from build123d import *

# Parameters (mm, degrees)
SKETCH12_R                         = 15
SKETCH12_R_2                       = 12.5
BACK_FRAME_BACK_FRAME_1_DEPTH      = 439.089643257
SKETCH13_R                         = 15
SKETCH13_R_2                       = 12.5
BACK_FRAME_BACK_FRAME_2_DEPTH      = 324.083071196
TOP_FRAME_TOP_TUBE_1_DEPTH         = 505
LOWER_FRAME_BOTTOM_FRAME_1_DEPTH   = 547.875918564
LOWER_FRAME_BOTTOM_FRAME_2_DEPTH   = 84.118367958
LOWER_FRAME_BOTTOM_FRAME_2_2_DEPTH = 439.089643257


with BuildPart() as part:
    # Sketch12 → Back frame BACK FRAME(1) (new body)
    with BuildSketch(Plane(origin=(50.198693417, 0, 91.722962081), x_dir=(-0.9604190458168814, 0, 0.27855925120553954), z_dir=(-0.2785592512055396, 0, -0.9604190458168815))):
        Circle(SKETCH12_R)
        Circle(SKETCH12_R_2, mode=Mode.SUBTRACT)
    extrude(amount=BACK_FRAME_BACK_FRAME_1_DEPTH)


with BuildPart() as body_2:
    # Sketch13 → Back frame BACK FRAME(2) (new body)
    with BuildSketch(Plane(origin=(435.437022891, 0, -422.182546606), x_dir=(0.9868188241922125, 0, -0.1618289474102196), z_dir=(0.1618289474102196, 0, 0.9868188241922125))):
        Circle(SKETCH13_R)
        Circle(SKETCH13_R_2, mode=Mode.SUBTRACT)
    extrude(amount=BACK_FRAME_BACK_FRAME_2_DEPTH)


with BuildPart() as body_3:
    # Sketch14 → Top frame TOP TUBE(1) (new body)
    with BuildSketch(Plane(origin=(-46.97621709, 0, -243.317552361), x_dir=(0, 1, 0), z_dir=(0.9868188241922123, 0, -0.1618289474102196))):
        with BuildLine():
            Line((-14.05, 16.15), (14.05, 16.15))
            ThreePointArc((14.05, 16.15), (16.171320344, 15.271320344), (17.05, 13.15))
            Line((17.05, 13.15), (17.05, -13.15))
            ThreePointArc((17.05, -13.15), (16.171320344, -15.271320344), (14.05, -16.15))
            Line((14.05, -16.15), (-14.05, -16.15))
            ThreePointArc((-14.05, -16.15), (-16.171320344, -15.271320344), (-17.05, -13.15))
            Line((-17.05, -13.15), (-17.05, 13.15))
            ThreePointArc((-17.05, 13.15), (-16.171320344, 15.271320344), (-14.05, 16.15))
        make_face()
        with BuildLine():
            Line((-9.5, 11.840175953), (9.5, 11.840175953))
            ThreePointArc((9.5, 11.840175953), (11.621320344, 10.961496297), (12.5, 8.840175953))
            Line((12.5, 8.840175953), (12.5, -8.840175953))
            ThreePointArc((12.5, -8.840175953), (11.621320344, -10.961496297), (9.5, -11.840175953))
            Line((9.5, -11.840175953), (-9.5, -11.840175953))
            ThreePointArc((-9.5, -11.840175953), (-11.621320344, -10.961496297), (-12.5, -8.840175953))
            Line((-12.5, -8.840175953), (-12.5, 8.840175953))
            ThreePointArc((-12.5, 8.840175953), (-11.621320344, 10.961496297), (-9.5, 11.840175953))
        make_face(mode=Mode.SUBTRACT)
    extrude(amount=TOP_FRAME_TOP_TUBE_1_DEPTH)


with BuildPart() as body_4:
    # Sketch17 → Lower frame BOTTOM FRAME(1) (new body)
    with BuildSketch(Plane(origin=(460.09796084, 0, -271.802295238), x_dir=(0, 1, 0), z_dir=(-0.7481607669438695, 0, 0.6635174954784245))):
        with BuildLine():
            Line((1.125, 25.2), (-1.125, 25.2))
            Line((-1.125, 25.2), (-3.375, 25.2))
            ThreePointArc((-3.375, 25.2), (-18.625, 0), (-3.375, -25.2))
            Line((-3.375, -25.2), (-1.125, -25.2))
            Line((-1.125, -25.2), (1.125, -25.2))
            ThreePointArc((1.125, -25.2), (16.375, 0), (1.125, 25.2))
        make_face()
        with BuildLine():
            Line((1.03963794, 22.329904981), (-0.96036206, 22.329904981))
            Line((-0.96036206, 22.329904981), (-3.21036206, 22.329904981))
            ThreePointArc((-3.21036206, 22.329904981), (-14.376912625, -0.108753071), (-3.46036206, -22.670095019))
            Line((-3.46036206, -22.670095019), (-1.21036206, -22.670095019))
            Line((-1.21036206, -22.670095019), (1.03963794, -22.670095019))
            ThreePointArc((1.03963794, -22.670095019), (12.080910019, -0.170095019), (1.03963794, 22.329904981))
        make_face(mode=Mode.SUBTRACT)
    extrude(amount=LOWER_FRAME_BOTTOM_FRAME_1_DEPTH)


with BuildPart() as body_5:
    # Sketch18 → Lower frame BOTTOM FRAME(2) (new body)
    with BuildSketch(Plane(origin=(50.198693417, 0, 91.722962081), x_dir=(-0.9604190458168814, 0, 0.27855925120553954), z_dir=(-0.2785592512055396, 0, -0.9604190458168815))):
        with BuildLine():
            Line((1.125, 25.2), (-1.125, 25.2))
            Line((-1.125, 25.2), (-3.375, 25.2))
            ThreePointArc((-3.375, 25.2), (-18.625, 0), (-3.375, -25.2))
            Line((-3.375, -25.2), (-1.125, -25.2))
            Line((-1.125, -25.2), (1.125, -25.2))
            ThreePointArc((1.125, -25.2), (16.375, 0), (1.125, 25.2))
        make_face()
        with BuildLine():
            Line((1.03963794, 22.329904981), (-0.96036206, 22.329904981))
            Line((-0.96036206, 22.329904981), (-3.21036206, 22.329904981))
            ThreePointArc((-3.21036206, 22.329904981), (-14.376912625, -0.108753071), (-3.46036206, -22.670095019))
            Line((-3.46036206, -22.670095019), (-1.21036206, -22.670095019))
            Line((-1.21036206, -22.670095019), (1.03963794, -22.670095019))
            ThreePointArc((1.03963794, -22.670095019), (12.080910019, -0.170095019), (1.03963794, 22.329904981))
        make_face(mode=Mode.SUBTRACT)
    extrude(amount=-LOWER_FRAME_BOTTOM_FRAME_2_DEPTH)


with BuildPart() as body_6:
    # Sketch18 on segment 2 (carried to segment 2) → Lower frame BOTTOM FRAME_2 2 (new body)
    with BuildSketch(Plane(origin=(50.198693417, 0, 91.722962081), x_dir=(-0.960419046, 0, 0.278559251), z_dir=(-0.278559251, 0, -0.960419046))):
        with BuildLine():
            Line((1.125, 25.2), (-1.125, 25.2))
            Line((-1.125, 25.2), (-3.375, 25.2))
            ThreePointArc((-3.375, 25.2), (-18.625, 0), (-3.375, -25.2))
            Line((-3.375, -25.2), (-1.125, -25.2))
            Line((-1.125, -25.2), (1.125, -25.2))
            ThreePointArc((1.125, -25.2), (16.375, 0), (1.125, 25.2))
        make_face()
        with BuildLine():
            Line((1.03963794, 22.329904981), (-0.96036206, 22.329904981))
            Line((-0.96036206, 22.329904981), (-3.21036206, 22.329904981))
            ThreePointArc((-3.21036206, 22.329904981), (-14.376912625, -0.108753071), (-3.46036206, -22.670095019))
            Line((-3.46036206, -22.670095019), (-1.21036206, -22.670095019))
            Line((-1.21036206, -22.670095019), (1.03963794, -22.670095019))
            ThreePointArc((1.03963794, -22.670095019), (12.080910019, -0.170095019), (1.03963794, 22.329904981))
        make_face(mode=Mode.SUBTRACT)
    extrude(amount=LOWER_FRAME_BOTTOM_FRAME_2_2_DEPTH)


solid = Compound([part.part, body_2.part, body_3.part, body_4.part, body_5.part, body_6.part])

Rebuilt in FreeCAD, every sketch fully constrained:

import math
import FreeCAD as App
import Part
import Sketcher
Q = App.Units.Quantity

doc = App.newDocument("Part")
body = doc.addObject("PartDesign::Body", "Body")

sketch1 = body.newObject("Sketcher::SketchObject", "Sketch")
sketch1.Placement = App.Placement(App.Vector(50.198693, 0, 91.722962), App.Rotation(App.Vector(-0.960419046, 0, 0.278559251), App.Vector(0, 1, 0), App.Vector(-0.278559251, 0, -0.960419046), "ZXY"))
sketch1.addGeometry([
    Part.Circle(App.Vector(0, 0, 0), App.Vector(0, 0, 1), 15),
    Part.Circle(App.Vector(0, 0, 0), App.Vector(0, 0, 1), 12.5),
], False)
sketch1.addConstraint([
    Sketcher.Constraint("Coincident", 0, 3, -1, 1),
    Sketcher.Constraint("Coincident", 1, 3, -1, 1),
    Sketcher.Constraint("Diameter", 0, Q("30 mm")),
    Sketcher.Constraint("Diameter", 1, Q("25 mm")),
])
pad1 = body.newObject("PartDesign::Pad", "Pad")
pad1.Profile = sketch1
pad1.Length = 439.089643
body2 = doc.addObject("PartDesign::Body", "Body001")

sketch2 = body2.newObject("Sketcher::SketchObject", "Sketch001")
sketch2.Placement = App.Placement(App.Vector(435.437023, 0, -422.182547), App.Rotation(App.Vector(0.986818824, 0, -0.161828947), App.Vector(0, 0.999999999, 0), App.Vector(0.161828947, 0, 0.986818824), "ZXY"))
sketch2.addGeometry([
    Part.Circle(App.Vector(0, 0, 0), App.Vector(0, 0, 1), 15),
    Part.Circle(App.Vector(0, 0, 0), App.Vector(0, 0, 1), 12.5),
], False)
sketch2.addConstraint([
    Sketcher.Constraint("Coincident", 0, 3, -1, 1),
    Sketcher.Constraint("Coincident", 1, 3, -1, 1),
    Sketcher.Constraint("Diameter", 0, Q("30 mm")),
    Sketcher.Constraint("Diameter", 1, Q("25 mm")),
])
pad2 = body2.newObject("PartDesign::Pad", "Pad001")
pad2.Profile = sketch2
pad2.Length = 324.083071
body3 = doc.addObject("PartDesign::Body", "Body002")

sketch3 = body3.newObject("Sketcher::SketchObject", "Sketch002")
sketch3.Placement = App.Placement(App.Vector(-46.976217, 0, -243.317552), App.Rotation(App.Vector(0, 1, 0), App.Vector(0.161828947, 0, 0.986818824), App.Vector(0.986818824, 0, -0.161828947), "ZXY"))
sketch3.addGeometry([
    Part.LineSegment(App.Vector(14.05, 16.15, 0), App.Vector(-14.05, 16.15, 0)),
    Part.ArcOfCircle(Part.Circle(App.Vector(-14.05, 13.15, 0), App.Vector(0, 0, 1), 3), math.radians(90), math.radians(180)),
    Part.LineSegment(App.Vector(-17.05, 13.15, 0), App.Vector(-17.05, -13.15, 0)),
    Part.ArcOfCircle(Part.Circle(App.Vector(-14.05, -13.15, 0), App.Vector(0, 0, 1), 3), math.radians(180), math.radians(270)),
    Part.LineSegment(App.Vector(-14.05, -16.15, 0), App.Vector(14.05, -16.15, 0)),
    Part.ArcOfCircle(Part.Circle(App.Vector(14.05, -13.15, 0), App.Vector(0, 0, 1), 3), math.radians(-90), math.radians(0)),
    Part.LineSegment(App.Vector(17.05, -13.15, 0), App.Vector(17.05, 13.15, 0)),
    Part.ArcOfCircle(Part.Circle(App.Vector(14.05, 13.15, 0), App.Vector(0, 0, 1), 3), math.radians(0), math.radians(90)),
    Part.LineSegment(App.Vector(-9.5, 11.840176, 0), App.Vector(9.5, 11.840176, 0)),
    Part.ArcOfCircle(Part.Circle(App.Vector(9.5, 8.840176, 0), App.Vector(0, 0, 1), 3), math.radians(0), math.radians(90)),
    Part.LineSegment(App.Vector(12.5, 8.840176, 0), App.Vector(12.5, -8.840176, 0)),
    Part.ArcOfCircle(Part.Circle(App.Vector(9.5, -8.840176, 0), App.Vector(0, 0, 1), 3), math.radians(-90), math.radians(0)),
    Part.LineSegment(App.Vector(9.5, -11.840176, 0), App.Vector(-9.5, -11.840176, 0)),
    Part.ArcOfCircle(Part.Circle(App.Vector(-9.5, -8.840176, 0), App.Vector(0, 0, 1), 3), math.radians(180), math.radians(270)),
    Part.LineSegment(App.Vector(-12.5, -8.840176, 0), App.Vector(-12.5, 8.840176, 0)),
    Part.ArcOfCircle(Part.Circle(App.Vector(-9.5, 8.840176, 0), App.Vector(0, 0, 1), 3), math.radians(90), math.radians(180)),
], False)
sketch3.addConstraint([
    Sketcher.Constraint("Tangent", 0, 2, 1, 1),
    Sketcher.Constraint("Tangent", 1, 2, 2, 1),
    Sketcher.Constraint("Tangent", 2, 2, 3, 1),
    Sketcher.Constraint("Tangent", 3, 2, 4, 1),
    Sketcher.Constraint("Tangent", 4, 2, 5, 1),
    Sketcher.Constraint("Tangent", 5, 2, 6, 1),
    Sketcher.Constraint("Tangent", 6, 2, 7, 1),
    Sketcher.Constraint("Tangent", 7, 2, 0, 1),
    Sketcher.Constraint("Tangent", 8, 2, 9, 2),
    Sketcher.Constraint("Tangent", 9, 1, 10, 1),
    Sketcher.Constraint("Tangent", 10, 2, 11, 2),
    Sketcher.Constraint("Tangent", 11, 1, 12, 1),
    Sketcher.Constraint("Tangent", 12, 2, 13, 2),
    Sketcher.Constraint("Tangent", 13, 1, 14, 1),
    Sketcher.Constraint("Tangent", 14, 2, 15, 2),
    Sketcher.Constraint("Tangent", 15, 1, 8, 1),
    Sketcher.Constraint("Horizontal", 0),
    Sketcher.Constraint("Vertical", 2),
    Sketcher.Constraint("Horizontal", 4),
    Sketcher.Constraint("Vertical", 6),
    Sketcher.Constraint("Horizontal", 8),
    Sketcher.Constraint("Vertical", 10),
    Sketcher.Constraint("Horizontal", 12),
    Sketcher.Constraint("Vertical", 14),
    Sketcher.Constraint("Equal", 1, 3),
    Sketcher.Constraint("Equal", 3, 5),
    Sketcher.Constraint("Equal", 5, 7),
    Sketcher.Constraint("Equal", 7, 9),
    Sketcher.Constraint("Equal", 9, 11),
    Sketcher.Constraint("Equal", 11, 13),
    Sketcher.Constraint("Equal", 13, 15),
    Sketcher.Constraint("Symmetric", 1, 3, 5, 3, -1, 1),
    Sketcher.Constraint("Symmetric", 9, 3, 13, 3, -1, 1),
    Sketcher.Constraint("Radius", 1, Q("3 mm")),
    Sketcher.Constraint("DistanceX", 8, 1, 8, 2, Q("19 mm")),
    Sketcher.Constraint("DistanceX", 0, 2, 0, 1, Q("28.1 mm")),
    Sketcher.Constraint("DistanceY", 2, 2, 2, 1, Q("26.3 mm")),
    Sketcher.Constraint("DistanceY", 10, 2, 10, 1, Q("17.680352 mm")),
])
pad3 = body3.newObject("PartDesign::Pad", "Pad002")
pad3.Profile = sketch3
pad3.Length = 505
body4 = doc.addObject("PartDesign::Body", "Body003")

sketch4 = body4.newObject("Sketcher::SketchObject", "Sketch003")
sketch4.Placement = App.Placement(App.Vector(460.097961, 0, -271.802295), App.Rotation(App.Vector(0, 1, 0), App.Vector(-0.663517495, 0, -0.748160767), App.Vector(-0.748160767, 0, 0.663517495), "ZXY"))
sketch4.addGeometry([
    Part.LineSegment(App.Vector(1.125, 25.2, 0), App.Vector(-3.375, 25.2, 0)),
    Part.ArcOfCircle(Part.Circle(App.Vector(9.820984, 0, 0), App.Vector(0, 0, 1), 28.445984), math.radians(117.638809), math.radians(242.361191)),
    Part.LineSegment(App.Vector(-3.375, -25.2, 0), App.Vector(1.125, -25.2, 0)),
    Part.ArcOfCircle(Part.Circle(App.Vector(-12.070984, 0, 0), App.Vector(0, 0, 1), 28.445984), math.radians(-62.361191), math.radians(62.361191)),
    Part.LineSegment(App.Vector(-3.210362, 22.329905, 0), App.Vector(1.039638, 22.329905, 0)),
    Part.ArcOfCircle(Part.Circle(App.Vector(-16.365074, -0.170095, 0), App.Vector(0, 0, 1), 28.445984), math.radians(-52.276517), math.radians(52.276517)),
    Part.LineSegment(App.Vector(1.039638, -22.670095, 0), App.Vector(-3.460362, -22.670095, 0)),
    Part.ArcOfCircle(Part.Circle(App.Vector(14.068632, -0.266784, 0), App.Vector(0, 0, 1), 28.445984), math.radians(127.404034), math.radians(231.959353)),
], False)
sketch4.addConstraint([
    Sketcher.Constraint("Coincident", 0, 2, 1, 1),
    Sketcher.Constraint("Coincident", 1, 2, 2, 1),
    Sketcher.Constraint("Coincident", 2, 2, 3, 1),
    Sketcher.Constraint("Coincident", 3, 2, 0, 1),
    Sketcher.Constraint("Coincident", 4, 2, 5, 2),
    Sketcher.Constraint("Coincident", 5, 1, 6, 1),
    Sketcher.Constraint("Coincident", 6, 2, 7, 2),
    Sketcher.Constraint("Coincident", 7, 1, 4, 1),
    Sketcher.Constraint("Horizontal", 0),
    Sketcher.Constraint("Horizontal", 2),
    Sketcher.Constraint("Horizontal", 4),
    Sketcher.Constraint("Horizontal", 6),
    Sketcher.Constraint("Equal", 1, 3),
    Sketcher.Constraint("Equal", 3, 5),
    Sketcher.Constraint("Equal", 5, 7),
    Sketcher.Constraint("Symmetric", 0, 2, 1, 2, -1),
    Sketcher.Constraint("PointOnObject", 3, 3, -1),
    Sketcher.Constraint("Vertical", 4, 2, 5, 1),
    Sketcher.Constraint("Equal", 2, 6),
    Sketcher.Constraint("DistanceX", 0, 2, 0, 1, Q("4.5 mm")),
    Sketcher.Constraint("DistanceX", 4, 1, 4, 2, Q("4.25 mm")),
    Sketcher.Constraint("DistanceY", -1, 1, 0, 2, Q("25.2 mm")),
    Sketcher.Constraint("DistanceY", 6, 2, 5, 3, Q("22.5 mm")),
    Sketcher.Constraint("DistanceX", 0, 2, -1, 1, Q("3.375 mm")),
    Sketcher.Constraint("Radius", 1, Q("28.445984 mm")),
    Sketcher.Constraint("DistanceX", 5, 3, 3, 3, Q("4.29409 mm")),
    Sketcher.Constraint("DistanceY", 5, 3, -1, 1, Q("0.170095 mm")),
])
pad4 = body4.newObject("PartDesign::Pad", "Pad003")
pad4.Profile = sketch4
pad4.Length = 547.875919
body5 = doc.addObject("PartDesign::Body", "Body004")

sketch5 = body5.newObject("Sketcher::SketchObject", "Sketch004")
sketch5.Placement = App.Placement(App.Vector(50.198693, 0, 91.722962), App.Rotation(App.Vector(-0.960419046, 0, 0.278559251), App.Vector(0, 1, 0), App.Vector(-0.278559251, 0, -0.960419046), "ZXY"))
sketch5.addGeometry([
    Part.LineSegment(App.Vector(1.125, 25.2, 0), App.Vector(-3.375, 25.2, 0)),
    Part.ArcOfCircle(Part.Circle(App.Vector(9.820984, 0, 0), App.Vector(0, 0, 1), 28.445984), math.radians(117.638809), math.radians(242.361191)),
    Part.LineSegment(App.Vector(-3.375, -25.2, 0), App.Vector(1.125, -25.2, 0)),
    Part.ArcOfCircle(Part.Circle(App.Vector(-12.070984, 0, 0), App.Vector(0, 0, 1), 28.445984), math.radians(-62.361191), math.radians(62.361191)),
    Part.LineSegment(App.Vector(-3.210362, 22.329905, 0), App.Vector(1.039638, 22.329905, 0)),
    Part.ArcOfCircle(Part.Circle(App.Vector(-16.365074, -0.170095, 0), App.Vector(0, 0, 1), 28.445984), math.radians(-52.276517), math.radians(52.276517)),
    Part.LineSegment(App.Vector(1.039638, -22.670095, 0), App.Vector(-3.460362, -22.670095, 0)),
    Part.ArcOfCircle(Part.Circle(App.Vector(14.068632, -0.266784, 0), App.Vector(0, 0, 1), 28.445984), math.radians(127.404034), math.radians(231.959353)),
], False)
sketch5.addConstraint([
    Sketcher.Constraint("Coincident", 0, 2, 1, 1),
    Sketcher.Constraint("Coincident", 1, 2, 2, 1),
    Sketcher.Constraint("Coincident", 2, 2, 3, 1),
    Sketcher.Constraint("Coincident", 3, 2, 0, 1),
    Sketcher.Constraint("Coincident", 4, 2, 5, 2),
    Sketcher.Constraint("Coincident", 5, 1, 6, 1),
    Sketcher.Constraint("Coincident", 6, 2, 7, 2),
    Sketcher.Constraint("Coincident", 7, 1, 4, 1),
    Sketcher.Constraint("Horizontal", 0),
    Sketcher.Constraint("Horizontal", 2),
    Sketcher.Constraint("Horizontal", 4),
    Sketcher.Constraint("Horizontal", 6),
    Sketcher.Constraint("Equal", 1, 3),
    Sketcher.Constraint("Equal", 3, 5),
    Sketcher.Constraint("Equal", 5, 7),
    Sketcher.Constraint("Symmetric", 0, 2, 1, 2, -1),
    Sketcher.Constraint("PointOnObject", 3, 3, -1),
    Sketcher.Constraint("Vertical", 4, 2, 5, 1),
    Sketcher.Constraint("Equal", 2, 6),
    Sketcher.Constraint("DistanceX", 0, 2, 0, 1, Q("4.5 mm")),
    Sketcher.Constraint("DistanceX", 4, 1, 4, 2, Q("4.25 mm")),
    Sketcher.Constraint("DistanceY", -1, 1, 0, 2, Q("25.2 mm")),
    Sketcher.Constraint("DistanceY", 6, 2, 5, 3, Q("22.5 mm")),
    Sketcher.Constraint("DistanceX", 0, 2, -1, 1, Q("3.375 mm")),
    Sketcher.Constraint("Radius", 1, Q("28.445984 mm")),
    Sketcher.Constraint("DistanceX", 5, 3, 3, 3, Q("4.29409 mm")),
    Sketcher.Constraint("DistanceY", 5, 3, -1, 1, Q("0.170095 mm")),
])
pad5 = body5.newObject("PartDesign::Pad", "Pad004")
pad5.Profile = sketch5
pad5.Length = 84.118368
pad5.Reversed = True
body6 = doc.addObject("PartDesign::Body", "Body005")

sketch6 = body6.newObject("Sketcher::SketchObject", "Sketch005")
sketch6.Placement = App.Placement(App.Vector(50.198693, 0, 91.722962), App.Rotation(App.Vector(-0.960419046, 0, 0.278559251), App.Vector(0, 1, 0), App.Vector(-0.278559251, 0, -0.960419046), "ZXY"))
sketch6.addGeometry([
    Part.LineSegment(App.Vector(1.125, 25.2, 0), App.Vector(-3.375, 25.2, 0)),
    Part.ArcOfCircle(Part.Circle(App.Vector(9.820984, 0, 0), App.Vector(0, 0, 1), 28.445984), math.radians(117.638809), math.radians(242.361191)),
    Part.LineSegment(App.Vector(-3.375, -25.2, 0), App.Vector(1.125, -25.2, 0)),
    Part.ArcOfCircle(Part.Circle(App.Vector(-12.070984, 0, 0), App.Vector(0, 0, 1), 28.445984), math.radians(-62.361191), math.radians(62.361191)),
    Part.LineSegment(App.Vector(-3.210362, 22.329905, 0), App.Vector(1.039638, 22.329905, 0)),
    Part.ArcOfCircle(Part.Circle(App.Vector(-16.365074, -0.170095, 0), App.Vector(0, 0, 1), 28.445984), math.radians(-52.276517), math.radians(52.276517)),
    Part.LineSegment(App.Vector(1.039638, -22.670095, 0), App.Vector(-3.460362, -22.670095, 0)),
    Part.ArcOfCircle(Part.Circle(App.Vector(14.068632, -0.266784, 0), App.Vector(0, 0, 1), 28.445984), math.radians(127.404034), math.radians(231.959353)),
], False)
sketch6.addConstraint([
    Sketcher.Constraint("Coincident", 0, 2, 1, 1),
    Sketcher.Constraint("Coincident", 1, 2, 2, 1),
    Sketcher.Constraint("Coincident", 2, 2, 3, 1),
    Sketcher.Constraint("Coincident", 3, 2, 0, 1),
    Sketcher.Constraint("Coincident", 4, 2, 5, 2),
    Sketcher.Constraint("Coincident", 5, 1, 6, 1),
    Sketcher.Constraint("Coincident", 6, 2, 7, 2),
    Sketcher.Constraint("Coincident", 7, 1, 4, 1),
    Sketcher.Constraint("Horizontal", 0),
    Sketcher.Constraint("Horizontal", 2),
    Sketcher.Constraint("Horizontal", 4),
    Sketcher.Constraint("Horizontal", 6),
    Sketcher.Constraint("Equal", 1, 3),
    Sketcher.Constraint("Equal", 3, 5),
    Sketcher.Constraint("Equal", 5, 7),
    Sketcher.Constraint("Symmetric", 0, 2, 1, 2, -1),
    Sketcher.Constraint("PointOnObject", 3, 3, -1),
    Sketcher.Constraint("Vertical", 4, 2, 5, 1),
    Sketcher.Constraint("Equal", 2, 6),
    Sketcher.Constraint("DistanceX", 0, 2, 0, 1, Q("4.5 mm")),
    Sketcher.Constraint("DistanceX", 4, 1, 4, 2, Q("4.25 mm")),
    Sketcher.Constraint("DistanceY", -1, 1, 0, 2, Q("25.2 mm")),
    Sketcher.Constraint("DistanceY", 6, 2, 5, 3, Q("22.5 mm")),
    Sketcher.Constraint("DistanceX", 0, 2, -1, 1, Q("3.375 mm")),
    Sketcher.Constraint("Radius", 1, Q("28.445984 mm")),
    Sketcher.Constraint("DistanceX", 5, 3, 3, 3, Q("4.29409 mm")),
    Sketcher.Constraint("DistanceY", 5, 3, -1, 1, Q("0.170095 mm")),
])
pad6 = body6.newObject("PartDesign::Pad", "Pad005")
pad6.Profile = sketch6
pad6.Length = 439.089643

doc.recompute()
